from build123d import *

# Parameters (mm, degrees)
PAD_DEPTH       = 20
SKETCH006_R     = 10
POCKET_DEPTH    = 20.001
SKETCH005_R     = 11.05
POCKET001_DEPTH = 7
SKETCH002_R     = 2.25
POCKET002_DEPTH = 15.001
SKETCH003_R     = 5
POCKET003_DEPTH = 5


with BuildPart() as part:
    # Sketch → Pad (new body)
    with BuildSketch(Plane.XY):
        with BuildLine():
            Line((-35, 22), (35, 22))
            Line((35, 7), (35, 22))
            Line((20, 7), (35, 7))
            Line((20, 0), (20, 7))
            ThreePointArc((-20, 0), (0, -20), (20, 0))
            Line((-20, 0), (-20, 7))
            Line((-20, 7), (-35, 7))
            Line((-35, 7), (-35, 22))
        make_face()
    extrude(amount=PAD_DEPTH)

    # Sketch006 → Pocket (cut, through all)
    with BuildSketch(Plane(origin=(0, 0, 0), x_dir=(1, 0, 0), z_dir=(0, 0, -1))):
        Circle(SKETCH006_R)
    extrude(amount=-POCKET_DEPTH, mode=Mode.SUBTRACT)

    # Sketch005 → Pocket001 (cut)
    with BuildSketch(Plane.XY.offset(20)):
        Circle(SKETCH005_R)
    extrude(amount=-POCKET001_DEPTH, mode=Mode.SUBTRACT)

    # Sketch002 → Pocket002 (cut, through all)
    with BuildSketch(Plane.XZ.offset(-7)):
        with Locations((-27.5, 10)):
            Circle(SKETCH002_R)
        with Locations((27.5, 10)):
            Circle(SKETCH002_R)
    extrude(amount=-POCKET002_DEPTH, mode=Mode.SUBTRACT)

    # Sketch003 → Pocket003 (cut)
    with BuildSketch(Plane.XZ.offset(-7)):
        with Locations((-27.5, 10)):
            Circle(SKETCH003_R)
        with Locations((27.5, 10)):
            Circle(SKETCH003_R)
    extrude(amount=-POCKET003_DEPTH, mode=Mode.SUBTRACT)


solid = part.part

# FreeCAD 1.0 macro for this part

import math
import FreeCAD as App
import Part
import Sketcher

doc = App.newDocument("Part")
body = doc.addObject("PartDesign::Body", "Body")

sketch1 = doc.addObject("Sketcher::SketchObject", "Sketch")
body.addObject(sketch1)
sketch1.AttachmentSupport = (doc.XY_Plane, [""])
sketch1.MapMode = "FlatFace"
sketch1.addGeometry(Part.LineSegment(App.Vector(35, 22, 0), App.Vector(-35, 22, 0)), False)
sketch1.addGeometry(Part.LineSegment(App.Vector(-35, 22, 0), App.Vector(-35, 7, 0)), False)
sketch1.addGeometry(Part.LineSegment(App.Vector(-35, 7, 0), App.Vector(-20, 7, 0)), False)
sketch1.addGeometry(Part.LineSegment(App.Vector(-20, 7, 0), App.Vector(-20, 0, 0)), False)
sketch1.addGeometry(Part.ArcOfCircle(Part.Circle(App.Vector(0, 0, 0), App.Vector(0, 0, 1), 20), math.radians(180), math.radians(360)), False)
sketch1.addGeometry(Part.LineSegment(App.Vector(20, 0, 0), App.Vector(20, 7, 0)), False)
sketch1.addGeometry(Part.LineSegment(App.Vector(20, 7, 0), App.Vector(35, 7, 0)), False)
sketch1.addGeometry(Part.LineSegment(App.Vector(35, 7, 0), App.Vector(35, 22, 0)), False)
sketch1.addConstraint(Sketcher.Constraint("Coincident", 0, 2, 1, 1))
sketch1.addConstraint(Sketcher.Constraint("Coincident", 1, 2, 2, 1))
sketch1.addConstraint(Sketcher.Constraint("Coincident", 2, 2, 3, 1))
sketch1.addConstraint(Sketcher.Constraint("Tangent", 3, 2, 4, 1))
sketch1.addConstraint(Sketcher.Constraint("Tangent", 4, 2, 5, 1))
sketch1.addConstraint(Sketcher.Constraint("Coincident", 5, 2, 6, 1))
sketch1.addConstraint(Sketcher.Constraint("Coincident", 6, 2, 7, 1))
sketch1.addConstraint(Sketcher.Constraint("Coincident", 7, 2, 0, 1))
sketch1.addConstraint(Sketcher.Constraint("Horizontal", 0))
sketch1.addConstraint(Sketcher.Constraint("Vertical", 1))
sketch1.addConstraint(Sketcher.Constraint("Horizontal", 2))
sketch1.addConstraint(Sketcher.Constraint("Vertical", 3))
sketch1.addConstraint(Sketcher.Constraint("Vertical", 5))
sketch1.addConstraint(Sketcher.Constraint("Horizontal", 6))
sketch1.addConstraint(Sketcher.Constraint("Vertical", 7))
sketch1.addConstraint(Sketcher.Constraint("Coincident", 4, 3, -1, 1))
sketch1.addConstraint(Sketcher.Constraint("Symmetric", 1, 2, 6, 2, -2))
sketch1.addConstraint(Sketcher.Constraint("Equal", 6, 1))
sketch1.addConstraint(Sketcher.Constraint("Radius", 4, 20.0))
sketch1.addConstraint(Sketcher.Constraint("DistanceX", 0, 2, 0, 1, 70.0))
sketch1.addConstraint(Sketcher.Constraint("DistanceY", 3, 2, 3, 1, 7.0))
pad1 = doc.addObject("PartDesign::Pad", "Pad")
body.addObject(pad1)
pad1.Profile = sketch1
pad1.Length = 20

sketch2 = doc.addObject("Sketcher::SketchObject", "Sketch001")
body.addObject(sketch2)
sketch2.AttachmentSupport = (doc.XY_Plane, [""])
sketch2.MapMode = "FlatFace"
sketch2.addGeometry(Part.Circle(App.Vector(0, 0, 0), App.Vector(0, 0, 1), 10), False)
sketch2.addConstraint(Sketcher.Constraint("Coincident", 0, 3, -1, 1))
sketch2.addConstraint(Sketcher.Constraint("Diameter", 0, 20.0))
pocket1 = doc.addObject("PartDesign::Pocket", "Pocket")
body.addObject(pocket1)
pocket1.Profile = sketch2
pocket1.Type = "ThroughAll"
pocket1.Reversed = True

sketch3 = doc.addObject("Sketcher::SketchObject", "Sketch002")
body.addObject(sketch3)
sketch3.AttachmentSupport = (doc.XY_Plane, [""])
sketch3.MapMode = "FlatFace"
sketch3.AttachmentOffset = App.Placement(App.Vector(0, 0, 20), App.Rotation())
sketch3.addGeometry(Part.Circle(App.Vector(0, 0, 0), App.Vector(0, 0, 1), 11.05), False)
sketch3.addConstraint(Sketcher.Constraint("Coincident", 0, 3, -1, 1))
sketch3.addConstraint(Sketcher.Constraint("Diameter", 0, 22.1))
pocket2 = doc.addObject("PartDesign::Pocket", "Pocket001")
body.addObject(pocket2)
pocket2.Profile = sketch3
pocket2.Length = 7

sketch4 = doc.addObject("Sketcher::SketchObject", "Sketch003")
body.addObject(sketch4)
sketch4.AttachmentSupport = (doc.XZ_Plane, [""])
sketch4.MapMode = "FlatFace"
sketch4.AttachmentOffset = App.Placement(App.Vector(0, 0, -7), App.Rotation())
sketch4.addGeometry(Part.Circle(App.Vector(-27.5, 10, 0), App.Vector(0, 0, 1), 2.25), False)
sketch4.addGeometry(Part.Circle(App.Vector(27.5, 10, 0), App.Vector(0, 0, 1), 2.25), False)
sketch4.addConstraint(Sketcher.Constraint("Equal", 0, 1))
sketch4.addConstraint(Sketcher.Constraint("Symmetric", 0, 3, 1, 3, -2))
sketch4.addConstraint(Sketcher.Constraint("Diameter", 0, 4.5))
sketch4.addConstraint(Sketcher.Constraint("DistanceY", -1, 1, 0, 3, 10.0))
sketch4.addConstraint(Sketcher.Constraint("DistanceX", 0, 3, 1, 3, 55.0))
pocket3 = doc.addObject("PartDesign::Pocket", "Pocket002")
body.addObject(pocket3)
pocket3.Profile = sketch4
pocket3.Type = "ThroughAll"

sketch5 = doc.addObject("Sketcher::SketchObject", "Sketch004")
body.addObject(sketch5)
sketch5.AttachmentSupport = (doc.XZ_Plane, [""])
sketch5.MapMode = "FlatFace"
sketch5.AttachmentOffset = App.Placement(App.Vector(0, 0, -7), App.Rotation())
sketch5.addGeometry(Part.Circle(App.Vector(-27.5, 10, 0), App.Vector(0, 0, 1), 5), False)
sketch5.addGeometry(Part.Circle(App.Vector(27.5, 10, 0), App.Vector(0, 0, 1), 5), False)
sketch5.addConstraint(Sketcher.Constraint("Equal", 0, 1))
sketch5.addConstraint(Sketcher.Constraint("Symmetric", 0, 3, 1, 3, -2))
sketch5.addConstraint(Sketcher.Constraint("Diameter", 0, 10.0))
sketch5.addConstraint(Sketcher.Constraint("DistanceY", -1, 1, 0, 3, 10.0))
sketch5.addConstraint(Sketcher.Constraint("DistanceX", 0, 3, 1, 3, 55.0))
pocket4 = doc.addObject("PartDesign::Pocket", "Pocket003")
body.addObject(pocket4)
pocket4.Profile = sketch5
pocket4.Length = 5

doc.recompute()
